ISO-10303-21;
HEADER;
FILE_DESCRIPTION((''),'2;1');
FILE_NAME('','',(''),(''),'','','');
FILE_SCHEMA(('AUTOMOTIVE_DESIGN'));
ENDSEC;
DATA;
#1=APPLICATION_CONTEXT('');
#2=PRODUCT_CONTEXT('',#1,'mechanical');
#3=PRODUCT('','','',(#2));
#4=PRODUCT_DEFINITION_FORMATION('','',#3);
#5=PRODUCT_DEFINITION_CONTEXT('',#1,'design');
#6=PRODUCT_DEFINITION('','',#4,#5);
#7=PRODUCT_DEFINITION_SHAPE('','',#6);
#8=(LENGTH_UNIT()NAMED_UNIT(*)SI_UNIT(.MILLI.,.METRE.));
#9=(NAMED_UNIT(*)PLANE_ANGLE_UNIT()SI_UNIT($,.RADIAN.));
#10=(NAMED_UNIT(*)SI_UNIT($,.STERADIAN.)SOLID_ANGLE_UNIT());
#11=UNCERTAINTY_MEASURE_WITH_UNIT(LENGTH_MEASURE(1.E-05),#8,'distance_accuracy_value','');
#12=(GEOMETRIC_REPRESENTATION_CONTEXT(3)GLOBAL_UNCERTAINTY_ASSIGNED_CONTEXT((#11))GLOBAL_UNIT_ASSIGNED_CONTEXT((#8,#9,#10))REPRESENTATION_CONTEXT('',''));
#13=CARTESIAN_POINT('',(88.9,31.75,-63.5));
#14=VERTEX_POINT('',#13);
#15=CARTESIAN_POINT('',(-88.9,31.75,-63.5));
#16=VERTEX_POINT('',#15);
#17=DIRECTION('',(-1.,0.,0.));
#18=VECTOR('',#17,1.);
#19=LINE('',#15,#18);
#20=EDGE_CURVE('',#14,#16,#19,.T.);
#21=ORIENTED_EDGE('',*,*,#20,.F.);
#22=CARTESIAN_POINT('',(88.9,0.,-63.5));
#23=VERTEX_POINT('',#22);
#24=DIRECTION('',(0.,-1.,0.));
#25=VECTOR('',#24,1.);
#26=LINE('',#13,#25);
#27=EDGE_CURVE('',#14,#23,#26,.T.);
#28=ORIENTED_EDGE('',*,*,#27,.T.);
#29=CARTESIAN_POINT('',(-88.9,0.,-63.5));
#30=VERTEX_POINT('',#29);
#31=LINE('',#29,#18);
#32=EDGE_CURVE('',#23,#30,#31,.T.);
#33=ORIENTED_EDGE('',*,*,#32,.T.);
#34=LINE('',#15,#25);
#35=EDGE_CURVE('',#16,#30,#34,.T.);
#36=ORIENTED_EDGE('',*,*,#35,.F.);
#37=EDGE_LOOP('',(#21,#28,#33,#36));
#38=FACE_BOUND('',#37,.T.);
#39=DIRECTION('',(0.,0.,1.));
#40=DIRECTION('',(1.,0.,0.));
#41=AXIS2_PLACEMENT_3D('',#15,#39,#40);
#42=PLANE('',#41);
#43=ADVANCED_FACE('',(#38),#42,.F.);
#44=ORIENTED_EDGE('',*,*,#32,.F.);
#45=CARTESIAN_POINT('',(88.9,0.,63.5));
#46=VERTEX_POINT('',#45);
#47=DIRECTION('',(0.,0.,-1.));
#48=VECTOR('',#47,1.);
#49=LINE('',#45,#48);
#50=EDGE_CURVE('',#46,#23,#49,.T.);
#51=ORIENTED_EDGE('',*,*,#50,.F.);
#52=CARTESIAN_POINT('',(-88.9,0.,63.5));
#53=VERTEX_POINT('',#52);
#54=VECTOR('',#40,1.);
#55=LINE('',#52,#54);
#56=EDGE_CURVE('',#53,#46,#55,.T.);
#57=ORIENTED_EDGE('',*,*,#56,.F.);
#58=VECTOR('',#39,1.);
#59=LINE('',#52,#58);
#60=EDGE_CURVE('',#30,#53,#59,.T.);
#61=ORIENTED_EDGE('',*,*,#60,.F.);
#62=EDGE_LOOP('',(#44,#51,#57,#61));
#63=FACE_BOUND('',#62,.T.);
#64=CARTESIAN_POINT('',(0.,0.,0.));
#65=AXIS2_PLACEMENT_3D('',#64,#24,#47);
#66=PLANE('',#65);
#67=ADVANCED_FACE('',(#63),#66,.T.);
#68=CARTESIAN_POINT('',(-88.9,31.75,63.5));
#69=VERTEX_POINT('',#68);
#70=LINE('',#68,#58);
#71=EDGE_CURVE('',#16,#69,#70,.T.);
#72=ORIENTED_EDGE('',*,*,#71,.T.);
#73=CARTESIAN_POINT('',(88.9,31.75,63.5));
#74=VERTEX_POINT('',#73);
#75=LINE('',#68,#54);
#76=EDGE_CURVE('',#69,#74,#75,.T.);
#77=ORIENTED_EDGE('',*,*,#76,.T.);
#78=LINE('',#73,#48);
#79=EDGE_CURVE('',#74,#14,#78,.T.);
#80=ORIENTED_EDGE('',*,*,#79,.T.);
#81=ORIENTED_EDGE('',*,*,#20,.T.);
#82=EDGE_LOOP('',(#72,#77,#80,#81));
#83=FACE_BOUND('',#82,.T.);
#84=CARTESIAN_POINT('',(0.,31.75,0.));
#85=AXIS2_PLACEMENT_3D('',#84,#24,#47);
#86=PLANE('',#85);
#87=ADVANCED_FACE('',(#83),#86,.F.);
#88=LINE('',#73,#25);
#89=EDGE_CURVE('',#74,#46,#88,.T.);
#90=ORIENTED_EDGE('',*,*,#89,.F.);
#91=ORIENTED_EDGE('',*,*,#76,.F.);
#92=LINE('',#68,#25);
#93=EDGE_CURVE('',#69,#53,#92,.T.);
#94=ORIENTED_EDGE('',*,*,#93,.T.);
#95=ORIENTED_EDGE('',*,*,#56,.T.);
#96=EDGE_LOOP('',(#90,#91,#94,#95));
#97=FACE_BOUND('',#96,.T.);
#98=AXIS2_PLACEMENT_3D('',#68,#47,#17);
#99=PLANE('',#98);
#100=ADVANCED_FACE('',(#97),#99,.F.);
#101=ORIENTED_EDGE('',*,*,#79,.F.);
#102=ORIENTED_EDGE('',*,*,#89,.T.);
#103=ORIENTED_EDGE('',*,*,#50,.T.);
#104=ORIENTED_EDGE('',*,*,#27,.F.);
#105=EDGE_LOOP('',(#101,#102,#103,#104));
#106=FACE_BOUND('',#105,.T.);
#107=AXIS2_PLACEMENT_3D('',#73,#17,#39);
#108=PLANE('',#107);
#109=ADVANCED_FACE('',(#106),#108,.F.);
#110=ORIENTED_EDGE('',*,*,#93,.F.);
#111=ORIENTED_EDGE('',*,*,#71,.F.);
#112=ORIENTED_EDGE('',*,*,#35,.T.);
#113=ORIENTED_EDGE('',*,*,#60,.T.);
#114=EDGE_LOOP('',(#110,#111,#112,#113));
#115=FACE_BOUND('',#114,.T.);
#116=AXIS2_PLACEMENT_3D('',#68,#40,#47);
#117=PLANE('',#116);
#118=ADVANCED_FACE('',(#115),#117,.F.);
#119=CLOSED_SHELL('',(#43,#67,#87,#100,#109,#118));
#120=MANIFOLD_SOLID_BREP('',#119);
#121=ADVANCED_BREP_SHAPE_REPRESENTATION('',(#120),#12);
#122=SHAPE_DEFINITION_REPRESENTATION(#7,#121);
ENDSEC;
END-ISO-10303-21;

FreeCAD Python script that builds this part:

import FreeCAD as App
import Part
import Sketcher

V = App.Vector
Q = App.Units.Quantity

doc = App.newDocument("Part")
body = doc.addObject("PartDesign::Body", "Body")

sketch1 = body.newObject("Sketcher::SketchObject", "Sketch")
sketch1.AttachmentSupport = (doc.getObject("XZ_Plane"), [""])
sketch1.MapMode = "FlatFace"
sketch1.addGeometry([
    Part.LineSegment(V(-89, -64, 0), V(-89, 64, 0)),
    Part.LineSegment(V(-89, 64, 0), V(89, 64, 0)),
    Part.LineSegment(V(89, 64, 0), V(89, -64, 0)),
    Part.LineSegment(V(89, -64, 0), V(-89, -64, 0)),
], False)
sketch1.addConstraint([
    Sketcher.Constraint("Coincident", 0, 2, 1, 1),
    Sketcher.Constraint("Coincident", 1, 2, 2, 1),
    Sketcher.Constraint("Coincident", 2, 2, 3, 1),
    Sketcher.Constraint("Coincident", 3, 2, 0, 1),
    Sketcher.Constraint("Vertical", 0),
    Sketcher.Constraint("Horizontal", 1),
    Sketcher.Constraint("Vertical", 2),
    Sketcher.Constraint("Horizontal", 3),
    Sketcher.Constraint("Symmetric", 0, 2, 2, 2, -1, 1),
    Sketcher.Constraint("DistanceX", 1, 1, 1, 2, Q("7 in")),
    Sketcher.Constraint("DistanceY", 0, 1, 0, 2, Q("5 in")),
])
pad1 = body.newObject("PartDesign::Pad", "Pad")
pad1.Profile = sketch1
pad1.Length = Q("1.25 in")
pad1.Reversed = True

doc.recompute()
